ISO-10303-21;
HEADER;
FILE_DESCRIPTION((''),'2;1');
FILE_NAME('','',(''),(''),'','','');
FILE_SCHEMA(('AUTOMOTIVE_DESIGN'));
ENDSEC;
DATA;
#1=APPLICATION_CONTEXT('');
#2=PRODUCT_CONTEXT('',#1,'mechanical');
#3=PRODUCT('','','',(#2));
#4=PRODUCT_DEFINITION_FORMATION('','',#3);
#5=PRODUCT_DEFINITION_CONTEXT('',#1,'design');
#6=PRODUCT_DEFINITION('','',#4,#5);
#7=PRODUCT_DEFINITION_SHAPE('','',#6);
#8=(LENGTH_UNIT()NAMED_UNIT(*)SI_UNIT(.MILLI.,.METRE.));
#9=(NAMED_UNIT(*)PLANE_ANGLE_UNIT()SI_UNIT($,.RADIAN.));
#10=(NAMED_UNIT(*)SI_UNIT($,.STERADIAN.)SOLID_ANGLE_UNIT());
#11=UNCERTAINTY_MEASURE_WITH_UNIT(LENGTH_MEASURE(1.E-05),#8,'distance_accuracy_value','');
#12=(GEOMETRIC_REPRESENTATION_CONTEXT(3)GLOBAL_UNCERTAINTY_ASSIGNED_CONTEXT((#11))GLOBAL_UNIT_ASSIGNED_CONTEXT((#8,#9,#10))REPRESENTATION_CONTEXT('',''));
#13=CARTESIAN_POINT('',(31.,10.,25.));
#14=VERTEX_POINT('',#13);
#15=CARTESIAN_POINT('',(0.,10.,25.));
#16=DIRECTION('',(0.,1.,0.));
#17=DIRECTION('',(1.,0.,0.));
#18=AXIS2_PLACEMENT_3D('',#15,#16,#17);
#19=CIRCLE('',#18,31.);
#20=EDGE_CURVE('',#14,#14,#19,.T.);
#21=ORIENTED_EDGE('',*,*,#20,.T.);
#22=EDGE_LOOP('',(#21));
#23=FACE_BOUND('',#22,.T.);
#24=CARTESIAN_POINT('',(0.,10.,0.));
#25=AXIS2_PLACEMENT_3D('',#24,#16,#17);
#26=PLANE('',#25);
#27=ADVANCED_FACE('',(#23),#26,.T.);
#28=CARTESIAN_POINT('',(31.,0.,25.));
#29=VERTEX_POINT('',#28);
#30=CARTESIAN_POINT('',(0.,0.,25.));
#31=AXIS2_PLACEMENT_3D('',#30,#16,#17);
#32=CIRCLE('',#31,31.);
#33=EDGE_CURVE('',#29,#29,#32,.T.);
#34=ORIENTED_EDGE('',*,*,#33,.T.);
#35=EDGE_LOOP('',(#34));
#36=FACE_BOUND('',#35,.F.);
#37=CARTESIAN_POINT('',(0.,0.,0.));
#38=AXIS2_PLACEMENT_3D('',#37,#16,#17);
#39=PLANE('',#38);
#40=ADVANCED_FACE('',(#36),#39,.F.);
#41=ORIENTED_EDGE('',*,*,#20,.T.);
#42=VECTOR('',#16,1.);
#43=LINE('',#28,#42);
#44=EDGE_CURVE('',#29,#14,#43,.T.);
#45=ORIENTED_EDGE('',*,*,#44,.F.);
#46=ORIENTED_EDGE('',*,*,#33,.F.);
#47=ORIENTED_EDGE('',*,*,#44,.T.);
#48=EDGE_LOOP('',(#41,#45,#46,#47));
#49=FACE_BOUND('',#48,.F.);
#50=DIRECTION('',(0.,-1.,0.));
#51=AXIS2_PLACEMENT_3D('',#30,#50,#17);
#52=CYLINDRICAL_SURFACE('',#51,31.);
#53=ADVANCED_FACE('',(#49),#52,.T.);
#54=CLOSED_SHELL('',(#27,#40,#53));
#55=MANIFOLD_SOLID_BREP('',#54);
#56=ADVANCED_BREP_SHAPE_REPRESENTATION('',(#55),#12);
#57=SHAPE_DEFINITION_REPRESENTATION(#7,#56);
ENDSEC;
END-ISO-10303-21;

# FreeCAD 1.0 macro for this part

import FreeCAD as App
import Part
import Sketcher

doc = App.newDocument("Part")
body = doc.addObject("PartDesign::Body", "Body")

# Sketch on XZ plane
sketch1 = body.newObject("Sketcher::SketchObject", "Sketch")
sketch1.AttachmentSupport = (doc.getObject("XZ_Plane"), [""])
sketch1.MapMode = "FlatFace"
sketch1.addGeometry(Part.Circle(App.Vector(0, 25, 0), App.Vector(0, 0, 1), 31), False)
sketch1.addConstraint(Sketcher.Constraint("PointOnObject", 0, 3, -2))
sketch1.addConstraint(Sketcher.Constraint("Diameter", 0, 62.0))
sketch1.addConstraint(Sketcher.Constraint("DistanceY", -1, 1, 0, 3, 25.0))
pad1 = body.newObject("PartDesign::Pad", "Pad")
pad1.Profile = sketch1
pad1.Length = 10
pad1.Reversed = True

doc.recompute()
